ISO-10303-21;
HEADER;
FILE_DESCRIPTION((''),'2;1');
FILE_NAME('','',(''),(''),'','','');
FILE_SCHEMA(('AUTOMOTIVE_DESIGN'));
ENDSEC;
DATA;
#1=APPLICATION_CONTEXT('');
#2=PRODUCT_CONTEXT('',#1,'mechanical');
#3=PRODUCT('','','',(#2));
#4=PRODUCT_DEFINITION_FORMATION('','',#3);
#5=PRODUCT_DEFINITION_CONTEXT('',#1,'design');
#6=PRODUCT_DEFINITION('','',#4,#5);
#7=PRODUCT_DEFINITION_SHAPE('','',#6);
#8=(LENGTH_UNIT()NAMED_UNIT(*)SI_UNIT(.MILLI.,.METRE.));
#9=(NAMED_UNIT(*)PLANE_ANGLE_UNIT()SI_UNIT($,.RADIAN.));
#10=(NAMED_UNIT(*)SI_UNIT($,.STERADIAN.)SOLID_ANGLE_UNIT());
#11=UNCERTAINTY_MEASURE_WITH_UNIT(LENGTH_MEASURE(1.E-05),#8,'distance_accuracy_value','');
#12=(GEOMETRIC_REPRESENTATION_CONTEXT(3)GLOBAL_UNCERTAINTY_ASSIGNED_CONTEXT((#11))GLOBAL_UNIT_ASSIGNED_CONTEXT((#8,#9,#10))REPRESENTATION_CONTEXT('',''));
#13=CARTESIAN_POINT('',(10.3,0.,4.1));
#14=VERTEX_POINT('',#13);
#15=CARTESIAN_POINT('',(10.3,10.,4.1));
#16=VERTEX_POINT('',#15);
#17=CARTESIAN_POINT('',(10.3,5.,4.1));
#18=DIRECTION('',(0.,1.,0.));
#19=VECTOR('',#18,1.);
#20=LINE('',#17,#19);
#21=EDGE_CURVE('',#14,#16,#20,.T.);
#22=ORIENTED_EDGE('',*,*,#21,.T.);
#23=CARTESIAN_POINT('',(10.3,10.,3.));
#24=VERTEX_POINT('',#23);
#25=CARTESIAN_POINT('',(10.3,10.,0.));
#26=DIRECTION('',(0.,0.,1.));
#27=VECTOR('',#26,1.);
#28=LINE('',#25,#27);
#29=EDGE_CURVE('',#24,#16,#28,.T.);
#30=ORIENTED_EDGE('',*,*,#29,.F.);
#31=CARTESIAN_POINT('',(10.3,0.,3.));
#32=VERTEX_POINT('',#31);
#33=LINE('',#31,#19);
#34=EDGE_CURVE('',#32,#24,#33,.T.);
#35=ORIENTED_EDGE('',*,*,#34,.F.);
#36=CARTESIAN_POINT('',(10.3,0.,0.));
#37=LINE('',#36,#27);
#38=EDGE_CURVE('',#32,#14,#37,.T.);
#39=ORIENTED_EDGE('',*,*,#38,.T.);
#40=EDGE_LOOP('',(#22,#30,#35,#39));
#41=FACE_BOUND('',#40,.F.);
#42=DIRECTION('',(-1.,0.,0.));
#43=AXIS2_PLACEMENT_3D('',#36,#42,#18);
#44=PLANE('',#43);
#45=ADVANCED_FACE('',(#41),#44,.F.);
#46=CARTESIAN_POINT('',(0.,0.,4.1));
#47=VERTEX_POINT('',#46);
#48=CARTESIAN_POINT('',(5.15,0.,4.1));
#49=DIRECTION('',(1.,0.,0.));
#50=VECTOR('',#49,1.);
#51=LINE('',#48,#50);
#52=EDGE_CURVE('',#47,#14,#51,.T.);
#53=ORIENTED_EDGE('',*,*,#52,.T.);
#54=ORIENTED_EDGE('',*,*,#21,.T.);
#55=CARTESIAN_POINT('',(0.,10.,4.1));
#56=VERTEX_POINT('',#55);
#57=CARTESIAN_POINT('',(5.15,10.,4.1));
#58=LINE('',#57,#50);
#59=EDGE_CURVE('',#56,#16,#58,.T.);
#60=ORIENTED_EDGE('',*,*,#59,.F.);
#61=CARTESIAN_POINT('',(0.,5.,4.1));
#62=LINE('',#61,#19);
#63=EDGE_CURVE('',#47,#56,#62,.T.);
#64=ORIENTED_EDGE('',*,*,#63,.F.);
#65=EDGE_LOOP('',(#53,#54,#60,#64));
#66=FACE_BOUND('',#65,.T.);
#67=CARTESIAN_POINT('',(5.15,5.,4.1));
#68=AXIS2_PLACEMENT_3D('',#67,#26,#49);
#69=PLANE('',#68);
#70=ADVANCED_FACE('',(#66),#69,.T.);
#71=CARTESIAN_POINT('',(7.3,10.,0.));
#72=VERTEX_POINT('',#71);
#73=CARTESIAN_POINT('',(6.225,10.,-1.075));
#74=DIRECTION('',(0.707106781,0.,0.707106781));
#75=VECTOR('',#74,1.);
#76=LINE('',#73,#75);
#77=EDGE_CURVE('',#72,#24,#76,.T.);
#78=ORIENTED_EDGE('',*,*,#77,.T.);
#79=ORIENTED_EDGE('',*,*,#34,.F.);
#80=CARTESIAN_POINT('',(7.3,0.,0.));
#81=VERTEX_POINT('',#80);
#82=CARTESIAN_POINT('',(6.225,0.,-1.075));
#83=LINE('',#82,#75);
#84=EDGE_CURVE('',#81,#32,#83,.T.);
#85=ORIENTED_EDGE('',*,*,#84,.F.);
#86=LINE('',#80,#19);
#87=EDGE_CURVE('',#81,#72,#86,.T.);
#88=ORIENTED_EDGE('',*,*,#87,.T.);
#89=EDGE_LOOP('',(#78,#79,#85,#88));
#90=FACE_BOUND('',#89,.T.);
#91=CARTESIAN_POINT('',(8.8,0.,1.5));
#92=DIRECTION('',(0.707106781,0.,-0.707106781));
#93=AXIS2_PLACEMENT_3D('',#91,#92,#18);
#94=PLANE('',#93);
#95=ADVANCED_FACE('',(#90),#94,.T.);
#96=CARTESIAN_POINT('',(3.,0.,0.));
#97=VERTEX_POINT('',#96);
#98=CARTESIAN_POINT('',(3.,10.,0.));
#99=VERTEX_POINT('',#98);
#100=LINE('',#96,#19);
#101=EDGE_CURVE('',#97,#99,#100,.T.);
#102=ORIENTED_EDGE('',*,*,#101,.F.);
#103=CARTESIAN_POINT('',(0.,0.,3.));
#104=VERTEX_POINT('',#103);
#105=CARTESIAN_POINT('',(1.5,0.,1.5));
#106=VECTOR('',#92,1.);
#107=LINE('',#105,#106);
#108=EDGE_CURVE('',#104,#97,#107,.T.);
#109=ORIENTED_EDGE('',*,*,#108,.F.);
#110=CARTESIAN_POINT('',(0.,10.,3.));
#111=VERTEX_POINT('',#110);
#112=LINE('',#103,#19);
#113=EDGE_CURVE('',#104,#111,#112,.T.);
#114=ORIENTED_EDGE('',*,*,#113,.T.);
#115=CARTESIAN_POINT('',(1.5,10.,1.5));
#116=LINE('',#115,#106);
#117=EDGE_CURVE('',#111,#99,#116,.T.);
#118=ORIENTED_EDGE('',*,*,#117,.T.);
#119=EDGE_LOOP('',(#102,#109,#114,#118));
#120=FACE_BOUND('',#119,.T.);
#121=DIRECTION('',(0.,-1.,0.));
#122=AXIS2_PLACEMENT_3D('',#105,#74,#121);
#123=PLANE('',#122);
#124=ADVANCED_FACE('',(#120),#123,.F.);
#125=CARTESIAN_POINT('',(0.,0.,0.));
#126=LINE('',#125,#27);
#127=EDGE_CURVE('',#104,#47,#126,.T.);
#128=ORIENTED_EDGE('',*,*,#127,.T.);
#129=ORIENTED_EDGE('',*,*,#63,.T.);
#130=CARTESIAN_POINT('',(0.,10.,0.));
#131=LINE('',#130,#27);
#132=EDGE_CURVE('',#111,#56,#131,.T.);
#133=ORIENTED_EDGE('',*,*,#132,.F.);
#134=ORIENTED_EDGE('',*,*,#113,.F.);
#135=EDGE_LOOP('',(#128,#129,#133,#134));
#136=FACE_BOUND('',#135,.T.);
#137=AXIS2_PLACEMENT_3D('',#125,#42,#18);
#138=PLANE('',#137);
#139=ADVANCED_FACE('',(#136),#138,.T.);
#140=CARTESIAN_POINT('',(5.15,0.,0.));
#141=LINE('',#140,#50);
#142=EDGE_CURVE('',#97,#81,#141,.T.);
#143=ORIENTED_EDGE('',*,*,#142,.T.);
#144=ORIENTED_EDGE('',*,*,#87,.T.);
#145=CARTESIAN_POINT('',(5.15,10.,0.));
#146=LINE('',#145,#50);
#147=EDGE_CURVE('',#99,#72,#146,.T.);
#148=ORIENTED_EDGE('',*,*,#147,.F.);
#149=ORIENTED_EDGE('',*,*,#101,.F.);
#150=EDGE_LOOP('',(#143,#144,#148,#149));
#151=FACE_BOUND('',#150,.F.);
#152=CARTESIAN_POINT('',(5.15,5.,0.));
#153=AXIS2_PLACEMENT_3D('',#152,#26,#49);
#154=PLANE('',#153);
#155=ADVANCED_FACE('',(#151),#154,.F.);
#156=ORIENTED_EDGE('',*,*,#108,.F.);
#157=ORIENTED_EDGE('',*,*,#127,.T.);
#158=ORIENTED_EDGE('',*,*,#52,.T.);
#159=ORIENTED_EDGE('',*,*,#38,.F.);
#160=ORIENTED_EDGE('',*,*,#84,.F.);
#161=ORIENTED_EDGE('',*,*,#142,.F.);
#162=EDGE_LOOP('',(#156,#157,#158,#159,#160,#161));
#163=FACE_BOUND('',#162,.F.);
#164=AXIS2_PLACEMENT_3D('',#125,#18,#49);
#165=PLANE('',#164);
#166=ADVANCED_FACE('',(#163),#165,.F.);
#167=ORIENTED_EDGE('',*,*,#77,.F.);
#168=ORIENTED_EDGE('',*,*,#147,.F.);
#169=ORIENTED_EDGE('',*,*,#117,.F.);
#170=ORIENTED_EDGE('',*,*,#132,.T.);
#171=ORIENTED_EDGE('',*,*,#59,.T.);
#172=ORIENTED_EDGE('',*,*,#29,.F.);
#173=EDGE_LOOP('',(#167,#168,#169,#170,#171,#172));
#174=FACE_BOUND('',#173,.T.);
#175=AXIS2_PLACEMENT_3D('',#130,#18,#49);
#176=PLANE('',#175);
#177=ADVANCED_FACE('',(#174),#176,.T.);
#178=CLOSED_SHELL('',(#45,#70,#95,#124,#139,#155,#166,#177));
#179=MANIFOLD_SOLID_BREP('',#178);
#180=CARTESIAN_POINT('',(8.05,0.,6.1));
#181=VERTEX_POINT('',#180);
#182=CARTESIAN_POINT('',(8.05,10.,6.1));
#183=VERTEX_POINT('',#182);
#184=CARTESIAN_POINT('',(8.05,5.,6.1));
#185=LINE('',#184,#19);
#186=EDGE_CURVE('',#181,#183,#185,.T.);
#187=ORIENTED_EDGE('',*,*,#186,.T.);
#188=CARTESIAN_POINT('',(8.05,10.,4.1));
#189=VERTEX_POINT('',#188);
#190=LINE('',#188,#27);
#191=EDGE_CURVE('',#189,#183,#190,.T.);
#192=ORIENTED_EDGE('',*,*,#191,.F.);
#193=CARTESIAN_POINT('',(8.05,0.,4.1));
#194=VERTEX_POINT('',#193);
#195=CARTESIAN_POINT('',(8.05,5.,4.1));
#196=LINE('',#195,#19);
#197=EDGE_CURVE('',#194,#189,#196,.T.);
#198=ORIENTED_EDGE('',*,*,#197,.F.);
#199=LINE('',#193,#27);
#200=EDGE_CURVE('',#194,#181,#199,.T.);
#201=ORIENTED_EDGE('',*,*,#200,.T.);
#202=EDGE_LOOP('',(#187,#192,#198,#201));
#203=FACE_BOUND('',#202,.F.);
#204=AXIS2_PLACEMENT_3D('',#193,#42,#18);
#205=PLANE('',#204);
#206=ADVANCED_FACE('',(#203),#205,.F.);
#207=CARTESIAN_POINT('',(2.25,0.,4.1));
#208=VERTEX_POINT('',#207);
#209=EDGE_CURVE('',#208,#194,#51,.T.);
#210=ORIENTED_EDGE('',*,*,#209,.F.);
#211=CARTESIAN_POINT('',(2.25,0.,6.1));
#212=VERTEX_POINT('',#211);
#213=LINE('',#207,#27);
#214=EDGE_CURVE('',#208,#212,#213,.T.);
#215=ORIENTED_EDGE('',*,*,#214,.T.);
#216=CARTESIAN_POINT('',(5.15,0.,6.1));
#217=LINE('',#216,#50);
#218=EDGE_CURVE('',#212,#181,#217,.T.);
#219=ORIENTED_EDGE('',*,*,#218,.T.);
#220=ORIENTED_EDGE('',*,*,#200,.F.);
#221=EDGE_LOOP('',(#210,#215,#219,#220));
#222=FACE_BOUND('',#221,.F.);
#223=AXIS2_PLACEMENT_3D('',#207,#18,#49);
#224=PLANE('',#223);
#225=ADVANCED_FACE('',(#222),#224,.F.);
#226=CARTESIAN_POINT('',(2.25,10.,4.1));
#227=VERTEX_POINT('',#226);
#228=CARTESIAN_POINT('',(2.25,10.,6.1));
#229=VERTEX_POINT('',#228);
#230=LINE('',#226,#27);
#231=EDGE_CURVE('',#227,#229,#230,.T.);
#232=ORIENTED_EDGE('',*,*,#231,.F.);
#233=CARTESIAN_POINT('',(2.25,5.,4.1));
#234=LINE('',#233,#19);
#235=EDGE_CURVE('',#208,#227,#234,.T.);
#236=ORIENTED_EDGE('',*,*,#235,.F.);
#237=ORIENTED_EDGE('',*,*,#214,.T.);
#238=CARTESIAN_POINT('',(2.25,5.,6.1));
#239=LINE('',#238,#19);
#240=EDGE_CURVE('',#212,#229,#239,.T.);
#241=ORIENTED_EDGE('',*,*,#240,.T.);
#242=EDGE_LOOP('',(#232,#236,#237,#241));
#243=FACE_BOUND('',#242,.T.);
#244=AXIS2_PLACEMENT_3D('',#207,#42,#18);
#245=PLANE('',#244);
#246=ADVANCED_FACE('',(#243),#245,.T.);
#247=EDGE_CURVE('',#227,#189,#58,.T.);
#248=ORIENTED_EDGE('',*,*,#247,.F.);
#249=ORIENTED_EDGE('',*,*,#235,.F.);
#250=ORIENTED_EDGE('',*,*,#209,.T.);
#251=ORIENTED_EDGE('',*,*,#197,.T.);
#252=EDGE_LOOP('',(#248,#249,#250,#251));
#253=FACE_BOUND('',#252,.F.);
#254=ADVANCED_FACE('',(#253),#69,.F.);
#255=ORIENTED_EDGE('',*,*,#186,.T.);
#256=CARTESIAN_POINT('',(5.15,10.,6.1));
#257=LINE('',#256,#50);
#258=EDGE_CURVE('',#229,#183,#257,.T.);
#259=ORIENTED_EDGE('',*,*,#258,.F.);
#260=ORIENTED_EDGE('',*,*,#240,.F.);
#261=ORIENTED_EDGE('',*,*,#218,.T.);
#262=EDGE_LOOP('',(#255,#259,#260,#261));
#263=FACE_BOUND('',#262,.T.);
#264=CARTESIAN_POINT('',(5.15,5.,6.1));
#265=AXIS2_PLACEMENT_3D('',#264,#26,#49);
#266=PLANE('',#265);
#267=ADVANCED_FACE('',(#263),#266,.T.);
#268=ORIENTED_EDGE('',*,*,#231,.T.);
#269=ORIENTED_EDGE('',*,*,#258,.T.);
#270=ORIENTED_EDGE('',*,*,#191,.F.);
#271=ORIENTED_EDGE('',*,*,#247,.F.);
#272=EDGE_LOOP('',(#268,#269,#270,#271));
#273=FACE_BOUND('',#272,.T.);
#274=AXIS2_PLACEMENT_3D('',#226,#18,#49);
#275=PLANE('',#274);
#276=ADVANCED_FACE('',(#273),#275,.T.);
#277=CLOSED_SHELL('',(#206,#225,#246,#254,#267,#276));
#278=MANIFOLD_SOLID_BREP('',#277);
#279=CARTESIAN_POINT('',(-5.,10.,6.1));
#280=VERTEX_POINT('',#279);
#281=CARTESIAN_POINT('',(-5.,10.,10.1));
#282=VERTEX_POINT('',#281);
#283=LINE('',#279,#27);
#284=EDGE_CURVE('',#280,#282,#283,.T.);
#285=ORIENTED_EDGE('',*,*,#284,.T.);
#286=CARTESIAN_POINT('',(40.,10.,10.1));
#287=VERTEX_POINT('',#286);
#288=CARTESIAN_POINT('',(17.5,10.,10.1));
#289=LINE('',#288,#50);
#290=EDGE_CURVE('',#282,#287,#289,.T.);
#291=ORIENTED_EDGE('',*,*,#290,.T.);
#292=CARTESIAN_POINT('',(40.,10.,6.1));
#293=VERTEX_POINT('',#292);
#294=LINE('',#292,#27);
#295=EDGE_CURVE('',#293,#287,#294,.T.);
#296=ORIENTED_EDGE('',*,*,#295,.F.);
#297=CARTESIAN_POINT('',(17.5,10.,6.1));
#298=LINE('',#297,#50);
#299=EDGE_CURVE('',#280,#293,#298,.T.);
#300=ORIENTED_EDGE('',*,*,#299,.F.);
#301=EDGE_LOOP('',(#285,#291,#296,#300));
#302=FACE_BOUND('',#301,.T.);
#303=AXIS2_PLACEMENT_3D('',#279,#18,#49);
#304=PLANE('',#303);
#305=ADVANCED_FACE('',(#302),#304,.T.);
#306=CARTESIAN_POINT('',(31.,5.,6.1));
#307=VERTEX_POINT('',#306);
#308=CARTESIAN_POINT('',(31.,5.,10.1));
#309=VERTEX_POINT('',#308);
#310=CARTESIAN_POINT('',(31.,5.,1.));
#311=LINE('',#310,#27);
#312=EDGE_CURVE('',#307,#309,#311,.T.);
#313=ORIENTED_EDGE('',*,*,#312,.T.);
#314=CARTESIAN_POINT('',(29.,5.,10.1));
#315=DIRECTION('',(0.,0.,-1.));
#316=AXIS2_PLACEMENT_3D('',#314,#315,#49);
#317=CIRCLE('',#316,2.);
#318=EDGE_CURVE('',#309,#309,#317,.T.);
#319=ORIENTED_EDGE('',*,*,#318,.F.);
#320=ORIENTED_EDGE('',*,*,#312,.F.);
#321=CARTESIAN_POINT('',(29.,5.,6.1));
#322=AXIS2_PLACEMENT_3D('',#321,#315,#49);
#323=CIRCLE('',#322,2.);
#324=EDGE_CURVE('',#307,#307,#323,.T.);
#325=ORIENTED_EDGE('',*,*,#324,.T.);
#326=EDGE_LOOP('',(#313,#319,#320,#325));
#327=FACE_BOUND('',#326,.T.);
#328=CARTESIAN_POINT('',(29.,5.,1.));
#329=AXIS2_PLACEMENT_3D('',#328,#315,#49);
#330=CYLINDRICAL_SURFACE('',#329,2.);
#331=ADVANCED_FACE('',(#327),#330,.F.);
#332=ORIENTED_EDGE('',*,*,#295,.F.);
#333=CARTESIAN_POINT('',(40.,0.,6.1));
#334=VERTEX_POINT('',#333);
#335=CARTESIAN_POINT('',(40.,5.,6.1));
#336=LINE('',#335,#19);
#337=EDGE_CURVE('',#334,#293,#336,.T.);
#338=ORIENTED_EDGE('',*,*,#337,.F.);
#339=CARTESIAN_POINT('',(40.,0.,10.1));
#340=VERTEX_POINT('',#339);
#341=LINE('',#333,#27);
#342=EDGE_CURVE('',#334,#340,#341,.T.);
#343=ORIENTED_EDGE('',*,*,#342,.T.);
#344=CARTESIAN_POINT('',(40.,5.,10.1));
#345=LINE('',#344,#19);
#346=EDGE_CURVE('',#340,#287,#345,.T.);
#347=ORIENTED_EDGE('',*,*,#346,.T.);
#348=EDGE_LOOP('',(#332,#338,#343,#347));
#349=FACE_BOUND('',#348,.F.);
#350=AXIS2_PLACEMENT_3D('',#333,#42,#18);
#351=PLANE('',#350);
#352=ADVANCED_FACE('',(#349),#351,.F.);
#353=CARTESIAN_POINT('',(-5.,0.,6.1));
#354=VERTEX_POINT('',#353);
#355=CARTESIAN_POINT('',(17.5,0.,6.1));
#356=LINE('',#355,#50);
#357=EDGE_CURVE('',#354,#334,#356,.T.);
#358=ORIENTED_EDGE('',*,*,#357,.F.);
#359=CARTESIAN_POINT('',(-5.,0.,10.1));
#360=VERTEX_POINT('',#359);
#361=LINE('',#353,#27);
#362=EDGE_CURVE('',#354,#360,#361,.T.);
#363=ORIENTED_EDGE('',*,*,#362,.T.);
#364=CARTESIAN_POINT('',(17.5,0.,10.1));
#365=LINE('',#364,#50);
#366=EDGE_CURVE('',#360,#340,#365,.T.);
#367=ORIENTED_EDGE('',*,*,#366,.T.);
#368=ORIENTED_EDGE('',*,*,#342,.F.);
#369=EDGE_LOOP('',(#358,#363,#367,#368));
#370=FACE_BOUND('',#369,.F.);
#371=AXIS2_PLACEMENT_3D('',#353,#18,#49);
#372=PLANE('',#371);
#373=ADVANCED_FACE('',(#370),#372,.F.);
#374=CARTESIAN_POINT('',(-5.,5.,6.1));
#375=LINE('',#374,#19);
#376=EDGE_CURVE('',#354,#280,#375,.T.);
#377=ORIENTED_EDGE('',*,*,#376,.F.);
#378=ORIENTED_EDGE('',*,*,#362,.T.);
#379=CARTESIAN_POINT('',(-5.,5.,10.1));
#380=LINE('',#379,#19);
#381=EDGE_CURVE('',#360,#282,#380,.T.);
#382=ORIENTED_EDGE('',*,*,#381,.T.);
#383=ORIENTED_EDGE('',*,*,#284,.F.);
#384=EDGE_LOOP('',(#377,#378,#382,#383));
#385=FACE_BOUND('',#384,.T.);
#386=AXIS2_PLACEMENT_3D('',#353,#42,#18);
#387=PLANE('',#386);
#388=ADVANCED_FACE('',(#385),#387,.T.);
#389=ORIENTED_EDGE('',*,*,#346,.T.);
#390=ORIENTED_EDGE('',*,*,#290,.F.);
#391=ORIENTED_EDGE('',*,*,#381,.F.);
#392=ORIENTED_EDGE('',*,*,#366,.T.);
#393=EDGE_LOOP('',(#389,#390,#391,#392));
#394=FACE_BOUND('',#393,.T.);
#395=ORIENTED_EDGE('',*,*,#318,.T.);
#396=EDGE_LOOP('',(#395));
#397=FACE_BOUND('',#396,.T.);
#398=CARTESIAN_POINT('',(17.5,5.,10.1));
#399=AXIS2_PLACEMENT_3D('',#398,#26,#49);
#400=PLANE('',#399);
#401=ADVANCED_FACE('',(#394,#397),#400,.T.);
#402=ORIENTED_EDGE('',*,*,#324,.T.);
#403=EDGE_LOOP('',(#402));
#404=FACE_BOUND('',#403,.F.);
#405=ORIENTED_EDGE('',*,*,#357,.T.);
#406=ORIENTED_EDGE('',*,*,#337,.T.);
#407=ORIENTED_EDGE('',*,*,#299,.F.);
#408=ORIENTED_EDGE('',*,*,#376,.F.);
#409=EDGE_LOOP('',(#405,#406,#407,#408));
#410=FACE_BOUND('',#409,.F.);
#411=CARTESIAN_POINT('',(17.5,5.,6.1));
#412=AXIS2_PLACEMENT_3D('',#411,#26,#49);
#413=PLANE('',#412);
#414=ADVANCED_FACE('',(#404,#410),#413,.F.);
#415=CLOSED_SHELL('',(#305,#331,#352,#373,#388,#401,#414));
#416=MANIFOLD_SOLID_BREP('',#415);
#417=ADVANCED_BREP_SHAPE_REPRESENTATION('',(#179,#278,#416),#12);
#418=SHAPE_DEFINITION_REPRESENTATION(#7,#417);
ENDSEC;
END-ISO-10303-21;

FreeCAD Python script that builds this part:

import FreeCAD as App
import Part
import Sketcher
from FreeCAD import Vector


def edges_at(feature, points):
    """Names of the edges that pass closest to the given points."""
    edges = feature.Shape.Edges
    near = lambda p: min(range(len(edges)), key=lambda i: edges[i].distToShape(Part.Vertex(*p))[0])
    return sorted({f"Edge{near(p) + 1}" for p in points})

doc = App.newDocument("Part")
body = doc.addObject("PartDesign::Body", "Body")

sketch1 = body.newObject("Sketcher::SketchObject", "Sketch")
sketch1.AttachmentSupport = (doc.getObject("XY_Plane"), [""])
sketch1.MapMode = "FlatFace"
sketch1.AttachmentOffset = App.Placement(Vector(0, 0, 4.1), App.Rotation())
sketch1.addGeometry(Part.LineSegment(Vector(2, 10, 0), Vector(2, 0, 0)), False)
sketch1.addGeometry(Part.LineSegment(Vector(2, 0, 0), Vector(8, 0, 0)), False)
sketch1.addGeometry(Part.LineSegment(Vector(8, 0, 0), Vector(8, 10, 0)), False)
sketch1.addGeometry(Part.LineSegment(Vector(8, 10, 0), Vector(2, 10, 0)), False)
sketch1.addConstraint(Sketcher.Constraint("Coincident", 0, 2, 1, 1))
sketch1.addConstraint(Sketcher.Constraint("Coincident", 1, 2, 2, 1))
sketch1.addConstraint(Sketcher.Constraint("Coincident", 2, 2, 3, 1))
sketch1.addConstraint(Sketcher.Constraint("Coincident", 3, 2, 0, 1))
sketch1.addConstraint(Sketcher.Constraint("Vertical", 0))
sketch1.addConstraint(Sketcher.Constraint("Horizontal", 1))
sketch1.addConstraint(Sketcher.Constraint("Vertical", 2))
sketch1.addConstraint(Sketcher.Constraint("Horizontal", 3))
sketch1.addConstraint(Sketcher.Constraint("PointOnObject", 0, 2, -1))
sketch1.addConstraint(Sketcher.Constraint("DistanceY", 0, 2, 0, 1, 10.0))
sketch1.addConstraint(Sketcher.Constraint("DistanceX", 1, 1, 1, 2, 5.8))
sketch1.addConstraint(Sketcher.Constraint("DistanceX", -1, 1, 0, 2, 2.25))
pad1 = body.newObject("PartDesign::Pad", "Pad")
pad1.Profile = sketch1
pad1.Length = 2
body2 = doc.addObject("PartDesign::Body", "Body001")

sketch2 = body2.newObject("Sketcher::SketchObject", "Sketch001")
sketch2.AttachmentSupport = (doc.getObject("XY_Plane001"), [""])
sketch2.MapMode = "FlatFace"
sketch2.addGeometry(Part.LineSegment(Vector(0, 10, 0), Vector(0, 0, 0)), False)
sketch2.addGeometry(Part.LineSegment(Vector(0, 0, 0), Vector(10, 0, 0)), False)
sketch2.addGeometry(Part.LineSegment(Vector(10, 0, 0), Vector(10, 10, 0)), False)
sketch2.addGeometry(Part.LineSegment(Vector(10, 10, 0), Vector(0, 10, 0)), False)
sketch2.addConstraint(Sketcher.Constraint("Coincident", 0, 2, 1, 1))
sketch2.addConstraint(Sketcher.Constraint("Coincident", 1, 2, 2, 1))
sketch2.addConstraint(Sketcher.Constraint("Coincident", 2, 2, 3, 1))
sketch2.addConstraint(Sketcher.Constraint("Coincident", 3, 2, 0, 1))
sketch2.addConstraint(Sketcher.Constraint("Vertical", 0))
sketch2.addConstraint(Sketcher.Constraint("Horizontal", 1))
sketch2.addConstraint(Sketcher.Constraint("Vertical", 2))
sketch2.addConstraint(Sketcher.Constraint("Horizontal", 3))
sketch2.addConstraint(Sketcher.Constraint("Coincident", 0, 2, -1, 1))
sketch2.addConstraint(Sketcher.Constraint("DistanceY", 0, 2, 0, 1, 10.0))
sketch2.addConstraint(Sketcher.Constraint("DistanceX", 1, 1, 1, 2, 10.3))
pad2 = body2.newObject("PartDesign::Pad", "Pad001")
pad2.Profile = sketch2
pad2.Length = 4.1
doc.recompute()

chamfer = body2.newObject("PartDesign::Chamfer", "Chamfer")
chamfer.Base = (pad2, edges_at(pad2, [(0, 5, 0)]))
chamfer.Size = 3
doc.recompute()

chamfer2 = body2.newObject("PartDesign::Chamfer", "Chamfer001")
chamfer2.Base = (chamfer, edges_at(chamfer, [(10.3, 5, 0)]))
chamfer2.Size = 3
body3 = doc.addObject("PartDesign::Body", "Body002")

sketch3 = body3.newObject("Sketcher::SketchObject", "Sketch002")
sketch3.AttachmentSupport = (doc.getObject("XY_Plane002"), [""])
sketch3.MapMode = "FlatFace"
sketch3.AttachmentOffset = App.Placement(Vector(0, 0, 1), App.Rotation())
sketch3.addGeometry(Part.Circle(Vector(29, 5, 0), Vector(0, 0, 1), 2), False)
sketch3.addConstraint(Sketcher.Constraint("Diameter", 0, 4.0))
sketch3.addConstraint(Sketcher.Constraint("DistanceX", -1, 1, 0, 3, 29.0))
sketch3.addConstraint(Sketcher.Constraint("DistanceY", -1, 1, 0, 3, 5.0))
pad3 = body3.newObject("PartDesign::Pad", "Pad002")
pad3.Profile = sketch3
pad3.Length = 10
body4 = doc.addObject("PartDesign::Body", "Body003")

sketch4 = body4.newObject("Sketcher::SketchObject", "Sketch003")
sketch4.AttachmentSupport = (doc.getObject("XY_Plane003"), [""])
sketch4.MapMode = "FlatFace"
sketch4.AttachmentOffset = App.Placement(Vector(0, 0, 6.1), App.Rotation())
sketch4.addGeometry(Part.LineSegment(Vector(-5, 10, 0), Vector(-5, 0, 0)), False)
sketch4.addGeometry(Part.LineSegment(Vector(-5, 0, 0), Vector(40, 0, 0)), False)
sketch4.addGeometry(Part.LineSegment(Vector(40, 0, 0), Vector(40, 10, 0)), False)
sketch4.addGeometry(Part.LineSegment(Vector(40, 10, 0), Vector(-5, 10, 0)), False)
sketch4.addConstraint(Sketcher.Constraint("Coincident", 0, 2, 1, 1))
sketch4.addConstraint(Sketcher.Constraint("Coincident", 1, 2, 2, 1))
sketch4.addConstraint(Sketcher.Constraint("Coincident", 2, 2, 3, 1))
sketch4.addConstraint(Sketcher.Constraint("Coincident", 3, 2, 0, 1))
sketch4.addConstraint(Sketcher.Constraint("Vertical", 0))
sketch4.addConstraint(Sketcher.Constraint("Horizontal", 1))
sketch4.addConstraint(Sketcher.Constraint("Vertical", 2))
sketch4.addConstraint(Sketcher.Constraint("Horizontal", 3))
sketch4.addConstraint(Sketcher.Constraint("PointOnObject", 0, 2, -1))
sketch4.addConstraint(Sketcher.Constraint("DistanceX", 1, 1, 1, 2, 45.0))
sketch4.addConstraint(Sketcher.Constraint("DistanceY", 0, 2, 0, 1, 10.0))
sketch4.addConstraint(Sketcher.Constraint("DistanceX", 0, 2, -1, 1, 5.0))
pad4 = body4.newObject("PartDesign::Pad", "Pad003")
pad4.Profile = sketch4
pad4.Length = 4
doc.recompute()

boolean = body4.newObject("PartDesign::Boolean", "Boolean")
boolean.Type = "Cut"
boolean.addObjects([body3])

doc.recompute()
